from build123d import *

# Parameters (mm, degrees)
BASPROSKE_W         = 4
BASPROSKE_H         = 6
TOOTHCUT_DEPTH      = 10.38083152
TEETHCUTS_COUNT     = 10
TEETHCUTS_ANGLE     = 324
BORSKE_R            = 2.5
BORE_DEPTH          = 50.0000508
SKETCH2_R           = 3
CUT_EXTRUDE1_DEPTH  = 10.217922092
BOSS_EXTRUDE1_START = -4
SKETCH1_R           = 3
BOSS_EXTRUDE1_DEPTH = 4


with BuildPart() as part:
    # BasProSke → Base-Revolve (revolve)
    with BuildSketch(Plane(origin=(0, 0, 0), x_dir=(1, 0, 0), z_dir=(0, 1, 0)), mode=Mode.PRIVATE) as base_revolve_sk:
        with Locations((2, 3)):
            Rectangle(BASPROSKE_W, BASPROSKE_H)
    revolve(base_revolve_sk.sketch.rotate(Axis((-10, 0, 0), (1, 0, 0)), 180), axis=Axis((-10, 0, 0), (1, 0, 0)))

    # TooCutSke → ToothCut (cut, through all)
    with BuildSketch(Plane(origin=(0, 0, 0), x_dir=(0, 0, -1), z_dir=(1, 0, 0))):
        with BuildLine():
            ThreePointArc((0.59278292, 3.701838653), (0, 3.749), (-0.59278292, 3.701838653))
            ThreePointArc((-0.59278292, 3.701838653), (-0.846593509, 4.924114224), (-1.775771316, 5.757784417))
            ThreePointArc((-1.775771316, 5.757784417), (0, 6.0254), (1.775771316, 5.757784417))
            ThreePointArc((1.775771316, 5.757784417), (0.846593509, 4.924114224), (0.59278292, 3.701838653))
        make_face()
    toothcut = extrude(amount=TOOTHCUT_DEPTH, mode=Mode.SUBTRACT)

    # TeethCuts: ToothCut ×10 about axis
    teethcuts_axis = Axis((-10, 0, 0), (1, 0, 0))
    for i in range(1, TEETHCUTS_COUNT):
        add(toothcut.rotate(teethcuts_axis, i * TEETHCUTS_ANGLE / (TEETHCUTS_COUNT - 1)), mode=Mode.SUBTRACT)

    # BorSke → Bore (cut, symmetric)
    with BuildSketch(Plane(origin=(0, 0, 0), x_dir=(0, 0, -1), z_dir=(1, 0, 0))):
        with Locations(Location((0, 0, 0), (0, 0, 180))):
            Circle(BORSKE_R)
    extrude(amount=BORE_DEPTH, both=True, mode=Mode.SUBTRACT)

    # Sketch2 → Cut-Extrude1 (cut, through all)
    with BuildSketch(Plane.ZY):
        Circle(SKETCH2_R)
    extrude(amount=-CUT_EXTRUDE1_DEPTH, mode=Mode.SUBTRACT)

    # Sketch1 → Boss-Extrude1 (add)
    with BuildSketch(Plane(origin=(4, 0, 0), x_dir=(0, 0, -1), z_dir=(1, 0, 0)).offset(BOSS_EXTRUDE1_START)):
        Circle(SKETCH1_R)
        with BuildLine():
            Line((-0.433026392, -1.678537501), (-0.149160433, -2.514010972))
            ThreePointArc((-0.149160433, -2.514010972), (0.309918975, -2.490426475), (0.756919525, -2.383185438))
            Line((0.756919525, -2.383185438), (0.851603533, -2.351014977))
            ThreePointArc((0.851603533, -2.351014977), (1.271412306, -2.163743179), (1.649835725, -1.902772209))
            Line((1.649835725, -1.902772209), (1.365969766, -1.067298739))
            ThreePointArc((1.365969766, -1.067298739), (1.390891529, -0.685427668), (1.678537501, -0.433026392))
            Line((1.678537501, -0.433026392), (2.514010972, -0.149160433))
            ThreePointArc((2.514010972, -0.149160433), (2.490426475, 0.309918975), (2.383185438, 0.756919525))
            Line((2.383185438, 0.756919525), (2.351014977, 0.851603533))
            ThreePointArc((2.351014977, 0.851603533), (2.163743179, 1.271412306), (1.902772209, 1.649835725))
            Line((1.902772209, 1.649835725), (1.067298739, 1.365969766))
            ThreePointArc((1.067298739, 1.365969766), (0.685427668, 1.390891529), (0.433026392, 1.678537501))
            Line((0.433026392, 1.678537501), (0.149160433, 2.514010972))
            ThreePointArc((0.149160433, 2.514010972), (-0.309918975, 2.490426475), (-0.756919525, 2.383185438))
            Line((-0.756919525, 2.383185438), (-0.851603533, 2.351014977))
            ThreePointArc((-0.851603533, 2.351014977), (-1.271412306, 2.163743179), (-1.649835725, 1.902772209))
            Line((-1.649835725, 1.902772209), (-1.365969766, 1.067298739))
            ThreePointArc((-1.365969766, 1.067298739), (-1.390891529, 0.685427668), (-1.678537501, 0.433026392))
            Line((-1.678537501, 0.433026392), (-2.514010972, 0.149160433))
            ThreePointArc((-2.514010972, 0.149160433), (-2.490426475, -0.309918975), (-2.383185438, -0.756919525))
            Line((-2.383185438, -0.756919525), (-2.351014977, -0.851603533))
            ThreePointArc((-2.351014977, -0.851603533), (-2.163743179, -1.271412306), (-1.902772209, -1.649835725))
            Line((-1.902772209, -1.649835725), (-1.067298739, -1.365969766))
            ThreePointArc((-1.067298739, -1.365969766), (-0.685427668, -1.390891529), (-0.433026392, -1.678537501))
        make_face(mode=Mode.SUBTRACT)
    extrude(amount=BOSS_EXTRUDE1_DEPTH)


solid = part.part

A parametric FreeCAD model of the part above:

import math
import FreeCAD as App
import Part
import Sketcher

doc = App.newDocument("Part")
body = doc.addObject("PartDesign::Body", "Body")

sketch1 = body.newObject("Sketcher::SketchObject", "Sketch")
sketch1.AttachmentSupport = (doc.getObject("XZ_Plane"), [""])
sketch1.MapMode = "FlatFace"
sketch1.addGeometry(Part.LineSegment(App.Vector(0, -6, 0), App.Vector(0, 0, 0)), False)
sketch1.addGeometry(Part.LineSegment(App.Vector(0, 0, 0), App.Vector(4, 0, 0)), False)
sketch1.addGeometry(Part.LineSegment(App.Vector(4, 0, 0), App.Vector(4, -6, 0)), False)
sketch1.addGeometry(Part.LineSegment(App.Vector(4, -6, 0), App.Vector(0, -6, 0)), False)
sketch1.addConstraint(Sketcher.Constraint("Coincident", 0, 2, 1, 1))
sketch1.addConstraint(Sketcher.Constraint("Coincident", 1, 2, 2, 1))
sketch1.addConstraint(Sketcher.Constraint("Coincident", 2, 2, 3, 1))
sketch1.addConstraint(Sketcher.Constraint("Coincident", 3, 2, 0, 1))
sketch1.addConstraint(Sketcher.Constraint("Vertical", 0))
sketch1.addConstraint(Sketcher.Constraint("Horizontal", 1))
sketch1.addConstraint(Sketcher.Constraint("Vertical", 2))
sketch1.addConstraint(Sketcher.Constraint("Horizontal", 3))
sketch1.addConstraint(Sketcher.Constraint("Coincident", 0, 2, -1, 1))
sketch1.addConstraint(Sketcher.Constraint("DistanceX", 1, 1, 1, 2, 4.0))
sketch1.addConstraint(Sketcher.Constraint("DistanceY", 0, 1, 0, 2, 6.0))
revolution = body.newObject("PartDesign::Revolution", "Revolution")
revolution.Profile = sketch1
revolution.ReferenceAxis = (sketch1, ["H_Axis"])
revolution.Angle = 360

sketch2 = body.newObject("Sketcher::SketchObject", "Sketch001")
sketch2.AttachmentSupport = (doc.getObject("YZ_Plane"), [""])
sketch2.MapMode = "FlatFace"
sketch2.addGeometry(Part.ArcOfCircle(Part.Circle(App.Vector(0, 0, 0), App.Vector(0, 0, 1), 3.7), math.radians(-9.1), math.radians(9.1)), False)
sketch2.addGeometry(Part.ArcOfCircle(Part.Circle(App.Vector(3.9, -2.6, 0), App.Vector(0, 0, 1), 2), math.radians(24), math.radians(96)), False)
sketch2.addGeometry(Part.ArcOfCircle(Part.Circle(App.Vector(0, 0, 0), App.Vector(0, 0, 1), 6), math.radians(-17), math.radians(17)), False)
sketch2.addGeometry(Part.ArcOfCircle(Part.Circle(App.Vector(3.9, 2.6, 0), App.Vector(0, 0, 1), 2), math.radians(-96), math.radians(-24)), False)
sketch2.addConstraint(Sketcher.Constraint("Coincident", 0, 1, 1, 2))
sketch2.addConstraint(Sketcher.Constraint("Coincident", 1, 1, 2, 1))
sketch2.addConstraint(Sketcher.Constraint("Coincident", 2, 2, 3, 2))
sketch2.addConstraint(Sketcher.Constraint("Coincident", 3, 1, 0, 2))
sketch2.addConstraint(Sketcher.Constraint("Coincident", 0, 3, -1, 1))
sketch2.addConstraint(Sketcher.Constraint("Coincident", 2, 3, -1, 1))
sketch2.addConstraint(Sketcher.Constraint("Equal", 1, 3))
sketch2.addConstraint(Sketcher.Constraint("Symmetric", 1, 3, 3, 3, -1))
sketch2.addConstraint(Sketcher.Constraint("Radius", 1, 2.0))
sketch2.addConstraint(Sketcher.Constraint("Radius", 0, 3.749))
sketch2.addConstraint(Sketcher.Constraint("Radius", 2, 6.0254))
sketch2.addConstraint(Sketcher.Constraint("DistanceX", -1, 1, 0, 1, 3.701839))
sketch2.addConstraint(Sketcher.Constraint("DistanceY", 1, 1, -1, 1, 1.775771))
pocket1 = body.newObject("PartDesign::Pocket", "Pocket")
pocket1.Profile = sketch2
pocket1.Type = "ThroughAll"
pocket1.Reversed = True
doc.recompute()

polarpattern = body.newObject("PartDesign::PolarPattern", "PolarPattern")
polarpattern.Originals = [pocket1]
polarpattern.Axis = (doc.getObject("X_Axis"), [""])
polarpattern.Angle = 360
polarpattern.Occurrences = 10
body.Tip = polarpattern

sketch3 = body.newObject("Sketcher::SketchObject", "Sketch002")
sketch3.AttachmentSupport = (doc.getObject("YZ_Plane"), [""])
sketch3.MapMode = "FlatFace"
sketch3.addGeometry(Part.Circle(App.Vector(0, 0, 0), App.Vector(0, 0, 1), 2.5), False)
sketch3.addConstraint(Sketcher.Constraint("Coincident", 0, 3, -1, 1))
sketch3.addConstraint(Sketcher.Constraint("Diameter", 0, 5.0))
pocket2 = body.newObject("PartDesign::Pocket", "Pocket001")
pocket2.Profile = sketch3
pocket2.Length = 100.000102
pocket2.Midplane = True

sketch4 = body.newObject("Sketcher::SketchObject", "Sketch003")
sketch4.AttachmentSupport = (doc.getObject("YZ_Plane"), [""])
sketch4.MapMode = "FlatFace"
sketch4.addGeometry(Part.Circle(App.Vector(0, 0, 0), App.Vector(0, 0, 1), 3), False)
sketch4.addConstraint(Sketcher.Constraint("Coincident", 0, 3, -1, 1))
sketch4.addConstraint(Sketcher.Constraint("Diameter", 0, 6.0))
pocket3 = body.newObject("PartDesign::Pocket", "Pocket002")
pocket3.Profile = sketch4
pocket3.Type = "ThroughAll"
pocket3.Reversed = True

sketch5 = body.newObject("Sketcher::SketchObject", "Sketch004")
sketch5.AttachmentSupport = (doc.getObject("YZ_Plane"), [""])
sketch5.MapMode = "FlatFace"
sketch5.addGeometry(Part.Circle(App.Vector(0, 0, 0), App.Vector(0, 0, 1), 3), False)
sketch5.addGeometry(Part.LineSegment(App.Vector(-2.51, 0.15, 0), App.Vector(-1.68, 0.43, 0)), False)
sketch5.addGeometry(Part.ArcOfCircle(Part.Circle(App.Vector(-1.84, 0.91, 0), App.Vector(0, 0, 1), 0.5), math.radians(-71), math.radians(19)), False)
sketch5.addGeometry(Part.LineSegment(App.Vector(-1.37, 1.07, 0), App.Vector(-1.65, 1.9, 0)), False)
sketch5.addGeometry(Part.ArcOfCircle(Part.Circle(App.Vector(-0.05, -0.02, 0), App.Vector(0, 0, 1), 2.5), math.radians(109), math.radians(130)), False)
sketch5.addGeometry(Part.LineSegment(App.Vector(-0.85, 2.35, 0), App.Vector(-0.76, 2.38, 0)), False)
sketch5.addGeometry(Part.ArcOfCircle(Part.Circle(App.Vector(0.05, 0.02, 0), App.Vector(0, 0, 1), 2.5), math.radians(88), math.radians(109)), False)
sketch5.addGeometry(Part.LineSegment(App.Vector(0.15, 2.51, 0), App.Vector(0.43, 1.68, 0)), False)
sketch5.addGeometry(Part.ArcOfCircle(Part.Circle(App.Vector(0.91, 1.84, 0), App.Vector(0, 0, 1), 0.5), math.radians(-161), math.radians(-71)), False)
sketch5.addGeometry(Part.LineSegment(App.Vector(1.07, 1.37, 0), App.Vector(1.9, 1.65, 0)), False)
sketch5.addGeometry(Part.ArcOfCircle(Part.Circle(App.Vector(-0.02, 0.05, 0), App.Vector(0, 0, 1), 2.5), math.radians(19), math.radians(40)), False)
sketch5.addGeometry(Part.LineSegment(App.Vector(2.35, 0.85, 0), App.Vector(2.38, 0.76, 0)), False)
sketch5.addGeometry(Part.ArcOfCircle(Part.Circle(App.Vector(0.02, -0.05, 0), App.Vector(0, 0, 1), 2.5), math.radians(-2), math.radians(19)), False)
sketch5.addGeometry(Part.LineSegment(App.Vector(2.51, -0.15, 0), App.Vector(1.68, -0.43, 0)), False)
sketch5.addGeometry(Part.ArcOfCircle(Part.Circle(App.Vector(1.84, -0.91, 0), App.Vector(0, 0, 1), 0.5), math.radians(109), math.radians(199)), False)
sketch5.addGeometry(Part.LineSegment(App.Vector(1.37, -1.07, 0), App.Vector(1.65, -1.9, 0)), False)
sketch5.addGeometry(Part.ArcOfCircle(Part.Circle(App.Vector(0.05, 0.02, 0), App.Vector(0, 0, 1), 2.5), math.radians(-71), math.radians(-50)), False)
sketch5.addGeometry(Part.LineSegment(App.Vector(0.85, -2.35, 0), App.Vector(0.76, -2.38, 0)), False)
sketch5.addGeometry(Part.ArcOfCircle(Part.Circle(App.Vector(-0.05, -0.02, 0), App.Vector(0, 0, 1), 2.5), math.radians(-92), math.radians(-71)), False)
sketch5.addGeometry(Part.LineSegment(App.Vector(-0.15, -2.51, 0), App.Vector(-0.43, -1.68, 0)), False)
sketch5.addGeometry(Part.ArcOfCircle(Part.Circle(App.Vector(-0.91, -1.84, 0), App.Vector(0, 0, 1), 0.5), math.radians(19), math.radians(109)), False)
sketch5.addGeometry(Part.LineSegment(App.Vector(-1.07, -1.37, 0), App.Vector(-1.9, -1.65, 0)), False)
sketch5.addGeometry(Part.ArcOfCircle(Part.Circle(App.Vector(0.02, -0.05, 0), App.Vector(0, 0, 1), 2.5), math.radians(-161), math.radians(-140)), False)
sketch5.addGeometry(Part.LineSegment(App.Vector(-2.35, -0.85, 0), App.Vector(-2.38, -0.76, 0)), False)
sketch5.addGeometry(Part.ArcOfCircle(Part.Circle(App.Vector(-0.02, 0.05, 0), App.Vector(0, 0, 1), 2.5), math.radians(178), math.radians(199)), False)
sketch5.addConstraint(Sketcher.Constraint("Tangent", 1, 2, 2, 1))
sketch5.addConstraint(Sketcher.Constraint("Tangent", 2, 2, 3, 1))
sketch5.addConstraint(Sketcher.Constraint("Coincident", 3, 2, 4, 2))
sketch5.addConstraint(Sketcher.Constraint("Tangent", 4, 1, 5, 1))
sketch5.addConstraint(Sketcher.Constraint("Tangent", 5, 2, 6, 2))
sketch5.addConstraint(Sketcher.Constraint("Coincident", 6, 1, 7, 1))
sketch5.addConstraint(Sketcher.Constraint("Tangent", 7, 2, 8, 1))
sketch5.addConstraint(Sketcher.Constraint("Tangent", 8, 2, 9, 1))
sketch5.addConstraint(Sketcher.Constraint("Coincident", 9, 2, 10, 2))
sketch5.addConstraint(Sketcher.Constraint("Tangent", 10, 1, 11, 1))
sketch5.addConstraint(Sketcher.Constraint("Tangent", 11, 2, 12, 2))
sketch5.addConstraint(Sketcher.Constraint("Coincident", 12, 1, 13, 1))
sketch5.addConstraint(Sketcher.Constraint("Tangent", 13, 2, 14, 1))
sketch5.addConstraint(Sketcher.Constraint("Tangent", 14, 2, 15, 1))
sketch5.addConstraint(Sketcher.Constraint("Coincident", 15, 2, 16, 2))
sketch5.addConstraint(Sketcher.Constraint("Tangent", 16, 1, 17, 1))
sketch5.addConstraint(Sketcher.Constraint("Tangent", 17, 2, 18, 2))
sketch5.addConstraint(Sketcher.Constraint("Coincident", 18, 1, 19, 1))
sketch5.addConstraint(Sketcher.Constraint("Tangent", 19, 2, 20, 1))
sketch5.addConstraint(Sketcher.Constraint("Tangent", 20, 2, 21, 1))
sketch5.addConstraint(Sketcher.Constraint("Coincident", 21, 2, 22, 2))
sketch5.addConstraint(Sketcher.Constraint("Tangent", 22, 1, 23, 1))
sketch5.addConstraint(Sketcher.Constraint("Tangent", 23, 2, 24, 2))
sketch5.addConstraint(Sketcher.Constraint("Coincident", 24, 1, 1, 1))
sketch5.addConstraint(Sketcher.Constraint("Coincident", 0, 3, -1, 1))
sketch5.addConstraint(Sketcher.Constraint("Coincident", 16, 3, 6, 3))
sketch5.addConstraint(Sketcher.Constraint("Coincident", 18, 3, 4, 3))
sketch5.addConstraint(Sketcher.Constraint("Coincident", 22, 3, 12, 3))
sketch5.addConstraint(Sketcher.Constraint("Coincident", 24, 3, 10, 3))
sketch5.addConstraint(Sketcher.Constraint("Equal", 4, 6))
sketch5.addConstraint(Sketcher.Constraint("Equal", 2, 8))
sketch5.addConstraint(Sketcher.Constraint("Equal", 6, 10))
sketch5.addConstraint(Sketcher.Constraint("Equal", 10, 12))
sketch5.addConstraint(Sketcher.Constraint("Equal", 8, 14))
sketch5.addConstraint(Sketcher.Constraint("Equal", 12, 16))
sketch5.addConstraint(Sketcher.Constraint("Equal", 16, 18))
sketch5.addConstraint(Sketcher.Constraint("Equal", 14, 20))
sketch5.addConstraint(Sketcher.Constraint("Equal", 18, 22))
sketch5.addConstraint(Sketcher.Constraint("Equal", 22, 24))
sketch5.addConstraint(Sketcher.Constraint("Symmetric", 4, 3, 6, 3, -1, 1))
sketch5.addConstraint(Sketcher.Constraint("Symmetric", 10, 3, 12, 3, -1, 1))
sketch5.addConstraint(Sketcher.Constraint("Symmetric", 2, 3, 14, 3, -1, 1))
sketch5.addConstraint(Sketcher.Constraint("Symmetric", 8, 3, 20, 3, -1, 1))
sketch5.addConstraint(Sketcher.Constraint("Perpendicular", 1, 3))
sketch5.addConstraint(Sketcher.Constraint("Perpendicular", 3, 5))
sketch5.addConstraint(Sketcher.Constraint("Perpendicular", 5, 7))
sketch5.addConstraint(Sketcher.Constraint("Perpendicular", 7, 9))
sketch5.addConstraint(Sketcher.Constraint("Perpendicular", 9, 11))
sketch5.addConstraint(Sketcher.Constraint("Perpendicular", 11, 13))
sketch5.addConstraint(Sketcher.Constraint("Perpendicular", 13, 15))
sketch5.addConstraint(Sketcher.Constraint("Perpendicular", 17, 19))
sketch5.addConstraint(Sketcher.Constraint("Perpendicular", 19, 21))
sketch5.addConstraint(Sketcher.Constraint("Equal", 1, 3))
sketch5.addConstraint(Sketcher.Constraint("Equal", 3, 7))
sketch5.addConstraint(Sketcher.Constraint("Equal", 7, 9))
sketch5.addConstraint(Sketcher.Constraint("Equal", 5, 11))
sketch5.addConstraint(Sketcher.Constraint("Diameter", 0, 6.0))
sketch5.addConstraint(Sketcher.Constraint("Radius", 2, 0.5))
sketch5.addConstraint(Sketcher.Constraint("Radius", 4, 2.5))
sketch5.addConstraint(Sketcher.Constraint("Distance", 5, 0.1))
sketch5.addConstraint(Sketcher.Constraint("DistanceY", -1, 1, 2, 2, 1.067299))
sketch5.addConstraint(Sketcher.Constraint("DistanceX", 1, 2, 3, 2, 0.028702))
pad1 = body.newObject("PartDesign::Pad", "Pad")
pad1.Profile = sketch5
pad1.Length = 4

doc.recompute()
